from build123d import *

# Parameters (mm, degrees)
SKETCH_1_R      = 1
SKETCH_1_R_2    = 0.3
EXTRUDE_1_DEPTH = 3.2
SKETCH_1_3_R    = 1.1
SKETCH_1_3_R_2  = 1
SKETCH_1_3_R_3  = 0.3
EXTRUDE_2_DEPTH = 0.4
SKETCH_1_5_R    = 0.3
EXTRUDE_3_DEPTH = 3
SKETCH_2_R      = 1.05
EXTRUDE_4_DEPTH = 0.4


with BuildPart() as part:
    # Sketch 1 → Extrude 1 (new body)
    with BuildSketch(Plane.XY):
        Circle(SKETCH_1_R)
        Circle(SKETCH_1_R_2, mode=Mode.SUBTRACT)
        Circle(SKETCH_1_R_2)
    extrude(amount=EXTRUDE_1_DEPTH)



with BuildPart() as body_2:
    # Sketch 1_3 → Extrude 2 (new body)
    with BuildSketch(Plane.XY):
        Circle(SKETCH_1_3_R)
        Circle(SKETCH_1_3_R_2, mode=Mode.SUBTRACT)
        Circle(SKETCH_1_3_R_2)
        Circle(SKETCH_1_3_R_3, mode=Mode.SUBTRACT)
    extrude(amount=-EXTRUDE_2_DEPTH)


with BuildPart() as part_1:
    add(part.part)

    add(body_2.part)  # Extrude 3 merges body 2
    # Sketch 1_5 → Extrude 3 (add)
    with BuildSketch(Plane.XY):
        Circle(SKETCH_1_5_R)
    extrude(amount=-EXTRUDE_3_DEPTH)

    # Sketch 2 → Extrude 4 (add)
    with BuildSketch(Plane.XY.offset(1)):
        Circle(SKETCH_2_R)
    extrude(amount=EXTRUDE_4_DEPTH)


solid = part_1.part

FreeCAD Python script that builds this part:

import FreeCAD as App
import Part
import Sketcher
Q = App.Units.Quantity

doc = App.newDocument("Part")
body = doc.addObject("PartDesign::Body", "Body")

sketch1 = body.newObject("Sketcher::SketchObject", "Sketch")
sketch1.AttachmentSupport = (doc.getObject("XY_Plane"), [""])
sketch1.MapMode = "FlatFace"
sketch1.addGeometry(Part.Circle(App.Vector(0, 0, 0), App.Vector(0, 0, 1), 1), False)
sketch1.addConstraint([
    Sketcher.Constraint("Coincident", 0, 3, -1, 1),
    Sketcher.Constraint("Diameter", 0, Q("2 mm")),
])
pad1 = body.newObject("PartDesign::Pad", "Pad")
pad1.Profile = sketch1
pad1.Length = 3.2
body2 = doc.addObject("PartDesign::Body", "Body001")

sketch2 = body2.newObject("Sketcher::SketchObject", "Sketch001")
sketch2.AttachmentSupport = (doc.getObject("XY_Plane001"), [""])
sketch2.MapMode = "FlatFace"
sketch2.addGeometry([
    Part.Circle(App.Vector(0, 0, 0), App.Vector(0, 0, 1), 1.1),
    Part.Circle(App.Vector(0, 0, 0), App.Vector(0, 0, 1), 0.3),
], False)
sketch2.addConstraint([
    Sketcher.Constraint("Coincident", 0, 3, -1, 1),
    Sketcher.Constraint("Coincident", 1, 3, -1, 1),
    Sketcher.Constraint("Diameter", 0, Q("2.2 mm")),
    Sketcher.Constraint("Diameter", 1, Q("0.6 mm")),
])
pad2 = body2.newObject("PartDesign::Pad", "Pad001")
pad2.Profile = sketch2
pad2.Length = 0.4
pad2.Reversed = True
doc.recompute()

boolean = body.newObject("PartDesign::Boolean", "Boolean")
boolean.Type = "Fuse"
boolean.addObjects([body2])

sketch3 = body.newObject("Sketcher::SketchObject", "Sketch002")
sketch3.AttachmentSupport = (doc.getObject("XY_Plane"), [""])
sketch3.MapMode = "FlatFace"
sketch3.addGeometry(Part.Circle(App.Vector(0, 0, 0), App.Vector(0, 0, 1), 0.3), False)
sketch3.addConstraint([
    Sketcher.Constraint("Coincident", 0, 3, -1, 1),
    Sketcher.Constraint("Diameter", 0, Q("0.6 mm")),
])
pad3 = body.newObject("PartDesign::Pad", "Pad002")
pad3.Profile = sketch3
pad3.Length = 3
pad3.Reversed = True

sketch4 = body.newObject("Sketcher::SketchObject", "Sketch003")
sketch4.AttachmentSupport = (doc.getObject("XY_Plane"), [""])
sketch4.MapMode = "FlatFace"
sketch4.AttachmentOffset = App.Placement(App.Vector(0, 0, 1), App.Rotation())
sketch4.addGeometry(Part.Circle(App.Vector(0, 0, 0), App.Vector(0, 0, 1), 1.05), False)
sketch4.addConstraint([
    Sketcher.Constraint("Coincident", 0, 3, -1, 1),
    Sketcher.Constraint("Diameter", 0, Q("2.1 mm")),
])
pad4 = body.newObject("PartDesign::Pad", "Pad003")
pad4.Profile = sketch4
pad4.Length = 0.4

doc.recompute()
